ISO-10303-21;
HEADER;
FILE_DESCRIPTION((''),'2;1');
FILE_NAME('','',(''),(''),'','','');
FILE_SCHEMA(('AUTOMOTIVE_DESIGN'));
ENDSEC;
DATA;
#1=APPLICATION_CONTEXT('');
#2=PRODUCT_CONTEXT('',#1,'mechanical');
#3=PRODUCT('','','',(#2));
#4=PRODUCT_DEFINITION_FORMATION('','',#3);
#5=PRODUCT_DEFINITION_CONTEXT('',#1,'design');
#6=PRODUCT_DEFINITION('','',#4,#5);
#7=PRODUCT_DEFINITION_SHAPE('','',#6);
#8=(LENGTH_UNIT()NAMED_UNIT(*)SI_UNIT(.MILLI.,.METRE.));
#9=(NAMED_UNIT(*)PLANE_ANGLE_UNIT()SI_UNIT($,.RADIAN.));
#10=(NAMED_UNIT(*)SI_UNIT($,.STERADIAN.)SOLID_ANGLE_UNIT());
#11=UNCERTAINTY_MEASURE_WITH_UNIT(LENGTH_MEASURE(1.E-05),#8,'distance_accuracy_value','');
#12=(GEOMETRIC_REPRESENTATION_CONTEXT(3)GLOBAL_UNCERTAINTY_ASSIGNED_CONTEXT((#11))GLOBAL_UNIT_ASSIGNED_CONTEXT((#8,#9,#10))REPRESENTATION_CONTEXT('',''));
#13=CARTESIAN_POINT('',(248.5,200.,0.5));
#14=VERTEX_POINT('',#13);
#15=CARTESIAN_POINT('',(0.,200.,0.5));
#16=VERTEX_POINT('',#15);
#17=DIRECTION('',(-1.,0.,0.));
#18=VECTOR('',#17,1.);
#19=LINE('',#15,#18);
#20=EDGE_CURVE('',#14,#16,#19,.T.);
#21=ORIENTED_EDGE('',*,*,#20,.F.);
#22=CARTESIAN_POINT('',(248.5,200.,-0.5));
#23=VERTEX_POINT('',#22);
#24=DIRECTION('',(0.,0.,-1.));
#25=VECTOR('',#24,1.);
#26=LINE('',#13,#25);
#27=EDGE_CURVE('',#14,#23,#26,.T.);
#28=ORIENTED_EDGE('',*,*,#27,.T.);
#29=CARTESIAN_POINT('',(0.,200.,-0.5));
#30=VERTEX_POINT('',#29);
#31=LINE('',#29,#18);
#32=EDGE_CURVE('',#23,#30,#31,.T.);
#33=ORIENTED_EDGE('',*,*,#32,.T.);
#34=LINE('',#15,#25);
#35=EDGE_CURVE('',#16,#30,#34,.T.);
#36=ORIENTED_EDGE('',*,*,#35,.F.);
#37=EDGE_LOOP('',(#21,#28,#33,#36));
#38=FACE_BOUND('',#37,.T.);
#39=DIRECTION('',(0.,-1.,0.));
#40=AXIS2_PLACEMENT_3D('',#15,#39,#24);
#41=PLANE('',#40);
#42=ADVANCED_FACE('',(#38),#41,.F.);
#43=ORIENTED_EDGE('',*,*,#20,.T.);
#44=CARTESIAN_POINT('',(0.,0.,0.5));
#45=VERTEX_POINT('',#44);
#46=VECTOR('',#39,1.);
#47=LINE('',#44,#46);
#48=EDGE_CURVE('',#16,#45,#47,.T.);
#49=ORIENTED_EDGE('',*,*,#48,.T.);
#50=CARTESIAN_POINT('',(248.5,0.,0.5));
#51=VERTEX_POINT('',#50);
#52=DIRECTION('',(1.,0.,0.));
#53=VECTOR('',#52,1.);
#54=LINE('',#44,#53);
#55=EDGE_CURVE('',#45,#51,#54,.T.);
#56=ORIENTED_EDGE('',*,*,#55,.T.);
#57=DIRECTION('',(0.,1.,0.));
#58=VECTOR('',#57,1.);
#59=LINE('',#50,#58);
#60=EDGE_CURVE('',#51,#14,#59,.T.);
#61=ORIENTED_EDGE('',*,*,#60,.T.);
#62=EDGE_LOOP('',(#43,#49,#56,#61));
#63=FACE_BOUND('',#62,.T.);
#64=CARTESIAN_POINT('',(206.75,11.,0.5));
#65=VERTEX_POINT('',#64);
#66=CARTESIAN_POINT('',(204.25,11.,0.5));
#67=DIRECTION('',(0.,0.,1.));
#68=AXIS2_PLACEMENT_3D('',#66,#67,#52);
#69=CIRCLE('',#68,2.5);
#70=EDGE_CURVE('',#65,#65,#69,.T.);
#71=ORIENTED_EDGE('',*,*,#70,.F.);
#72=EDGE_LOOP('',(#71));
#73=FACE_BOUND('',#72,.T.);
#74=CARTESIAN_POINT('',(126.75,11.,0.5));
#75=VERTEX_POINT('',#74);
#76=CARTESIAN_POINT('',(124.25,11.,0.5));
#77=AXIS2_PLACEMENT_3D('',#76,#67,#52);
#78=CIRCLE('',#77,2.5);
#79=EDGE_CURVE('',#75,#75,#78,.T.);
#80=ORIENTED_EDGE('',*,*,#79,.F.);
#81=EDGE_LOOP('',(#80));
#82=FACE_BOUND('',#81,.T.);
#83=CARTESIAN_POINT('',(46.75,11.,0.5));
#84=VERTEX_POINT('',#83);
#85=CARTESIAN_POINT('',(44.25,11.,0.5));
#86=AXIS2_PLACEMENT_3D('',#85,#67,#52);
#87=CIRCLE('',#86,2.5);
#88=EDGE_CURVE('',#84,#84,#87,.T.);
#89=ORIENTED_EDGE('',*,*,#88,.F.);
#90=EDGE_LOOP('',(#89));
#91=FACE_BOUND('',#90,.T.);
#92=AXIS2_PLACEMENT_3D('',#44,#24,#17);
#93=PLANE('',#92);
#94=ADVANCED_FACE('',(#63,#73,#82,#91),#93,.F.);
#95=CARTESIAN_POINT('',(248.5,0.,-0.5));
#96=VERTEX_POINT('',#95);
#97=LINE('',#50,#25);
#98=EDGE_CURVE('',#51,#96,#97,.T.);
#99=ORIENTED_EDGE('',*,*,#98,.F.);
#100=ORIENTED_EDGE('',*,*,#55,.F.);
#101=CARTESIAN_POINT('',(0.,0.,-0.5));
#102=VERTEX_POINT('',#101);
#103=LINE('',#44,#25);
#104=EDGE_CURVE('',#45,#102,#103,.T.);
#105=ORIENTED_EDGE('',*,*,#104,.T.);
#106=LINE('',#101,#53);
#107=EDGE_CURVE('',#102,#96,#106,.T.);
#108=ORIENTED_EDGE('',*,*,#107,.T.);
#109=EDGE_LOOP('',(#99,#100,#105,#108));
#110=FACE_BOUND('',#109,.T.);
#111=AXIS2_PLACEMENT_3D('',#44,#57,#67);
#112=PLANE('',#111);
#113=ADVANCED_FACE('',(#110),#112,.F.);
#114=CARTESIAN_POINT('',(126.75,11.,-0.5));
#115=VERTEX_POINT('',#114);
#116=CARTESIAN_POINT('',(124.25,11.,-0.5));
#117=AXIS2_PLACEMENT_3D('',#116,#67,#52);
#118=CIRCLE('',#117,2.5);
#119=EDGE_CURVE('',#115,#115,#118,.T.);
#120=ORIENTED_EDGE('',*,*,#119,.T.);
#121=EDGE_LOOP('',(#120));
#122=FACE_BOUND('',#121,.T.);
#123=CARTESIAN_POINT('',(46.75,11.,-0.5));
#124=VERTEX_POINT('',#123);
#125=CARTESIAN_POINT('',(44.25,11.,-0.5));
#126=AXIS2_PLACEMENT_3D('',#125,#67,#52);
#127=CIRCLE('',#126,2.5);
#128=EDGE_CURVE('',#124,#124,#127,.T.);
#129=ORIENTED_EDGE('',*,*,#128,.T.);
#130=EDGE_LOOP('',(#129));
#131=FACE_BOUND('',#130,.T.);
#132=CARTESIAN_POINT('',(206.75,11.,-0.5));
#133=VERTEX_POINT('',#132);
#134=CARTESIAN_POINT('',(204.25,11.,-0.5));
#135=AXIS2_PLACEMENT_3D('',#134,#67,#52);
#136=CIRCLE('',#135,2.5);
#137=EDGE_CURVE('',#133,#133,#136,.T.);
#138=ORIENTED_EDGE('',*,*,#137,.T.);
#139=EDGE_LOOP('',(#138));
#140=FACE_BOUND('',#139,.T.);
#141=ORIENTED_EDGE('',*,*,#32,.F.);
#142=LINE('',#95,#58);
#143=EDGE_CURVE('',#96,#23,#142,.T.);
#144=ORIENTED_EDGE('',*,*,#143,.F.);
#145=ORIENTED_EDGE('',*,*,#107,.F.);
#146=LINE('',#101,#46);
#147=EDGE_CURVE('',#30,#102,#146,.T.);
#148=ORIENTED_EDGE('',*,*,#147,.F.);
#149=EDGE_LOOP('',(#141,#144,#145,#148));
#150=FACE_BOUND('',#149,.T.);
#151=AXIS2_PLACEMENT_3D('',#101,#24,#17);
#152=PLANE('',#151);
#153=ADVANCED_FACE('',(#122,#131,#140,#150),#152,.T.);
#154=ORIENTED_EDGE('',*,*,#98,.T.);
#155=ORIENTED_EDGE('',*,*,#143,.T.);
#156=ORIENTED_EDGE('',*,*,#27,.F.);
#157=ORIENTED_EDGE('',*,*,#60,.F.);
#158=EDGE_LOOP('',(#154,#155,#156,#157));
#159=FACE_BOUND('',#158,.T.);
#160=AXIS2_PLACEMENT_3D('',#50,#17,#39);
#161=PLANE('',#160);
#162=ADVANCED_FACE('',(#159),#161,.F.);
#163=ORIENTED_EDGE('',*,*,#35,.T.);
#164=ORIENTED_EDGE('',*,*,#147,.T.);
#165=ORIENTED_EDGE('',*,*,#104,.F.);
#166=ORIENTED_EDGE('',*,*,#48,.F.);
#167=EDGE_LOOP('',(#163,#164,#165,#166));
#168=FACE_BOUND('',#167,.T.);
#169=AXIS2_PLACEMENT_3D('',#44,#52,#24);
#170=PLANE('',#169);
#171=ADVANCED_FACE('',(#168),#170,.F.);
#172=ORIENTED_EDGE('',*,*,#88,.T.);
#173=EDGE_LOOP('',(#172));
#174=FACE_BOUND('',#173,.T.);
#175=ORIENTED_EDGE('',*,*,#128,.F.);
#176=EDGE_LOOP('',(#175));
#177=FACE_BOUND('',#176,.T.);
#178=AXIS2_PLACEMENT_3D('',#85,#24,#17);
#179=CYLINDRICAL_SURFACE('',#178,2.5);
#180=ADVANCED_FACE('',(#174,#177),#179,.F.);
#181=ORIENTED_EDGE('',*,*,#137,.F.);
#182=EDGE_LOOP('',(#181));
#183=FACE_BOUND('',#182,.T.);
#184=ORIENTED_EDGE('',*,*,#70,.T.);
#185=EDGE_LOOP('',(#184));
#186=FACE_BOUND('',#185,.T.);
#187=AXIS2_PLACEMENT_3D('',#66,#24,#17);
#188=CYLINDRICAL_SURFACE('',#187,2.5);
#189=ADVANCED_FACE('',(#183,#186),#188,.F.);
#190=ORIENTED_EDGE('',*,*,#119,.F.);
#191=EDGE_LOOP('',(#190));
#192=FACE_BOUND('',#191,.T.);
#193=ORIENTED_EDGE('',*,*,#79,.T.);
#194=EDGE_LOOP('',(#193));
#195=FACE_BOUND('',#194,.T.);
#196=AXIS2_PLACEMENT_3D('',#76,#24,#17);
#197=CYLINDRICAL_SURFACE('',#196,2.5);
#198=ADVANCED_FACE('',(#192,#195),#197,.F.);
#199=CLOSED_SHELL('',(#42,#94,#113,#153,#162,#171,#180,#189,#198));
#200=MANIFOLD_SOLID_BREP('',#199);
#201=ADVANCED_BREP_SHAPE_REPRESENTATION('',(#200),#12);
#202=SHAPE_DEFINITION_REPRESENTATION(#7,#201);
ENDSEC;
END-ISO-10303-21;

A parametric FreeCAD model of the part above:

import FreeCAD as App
import Part
import Sketcher
Q = App.Units.Quantity

doc = App.newDocument("Part")
params = doc.addObject("Spreadsheet::Sheet", "Params")
for row, (alias, value) in enumerate([
    ("sketch1_diameter", "5 mm"),
    ("sketch1_height", "200 mm"),
    ("sketch1_width", "248.5 mm"),
    ("pad1_length", "1 mm"),
], start=1):
    params.set(f"A{row}", alias)
    params.set(f"B{row}", "=" + value)
    params.setAlias(f"B{row}", alias)

body = doc.addObject("PartDesign::Body", "Body")

sketch1 = body.newObject("Sketcher::SketchObject", "Sketch")
sketch1.AttachmentSupport = (doc.getObject("XY_Plane"), [""])
sketch1.MapMode = "FlatFace"
sketch1.addGeometry(Part.LineSegment(App.Vector(0, 200, 0), App.Vector(0, 0, 0)), False)
sketch1.addGeometry(Part.LineSegment(App.Vector(0, 0, 0), App.Vector(248.5, 0, 0)), False)
sketch1.addGeometry(Part.LineSegment(App.Vector(248.5, 0, 0), App.Vector(248.5, 200, 0)), False)
sketch1.addGeometry(Part.LineSegment(App.Vector(248.5, 200, 0), App.Vector(0, 200, 0)), False)
sketch1.addGeometry(Part.Circle(App.Vector(44.2, 11, 0), App.Vector(0, 0, 1), 2.5), False)
sketch1.addGeometry(Part.Circle(App.Vector(124.2, 11, 0), App.Vector(0, 0, 1), 2.5), False)
sketch1.addGeometry(Part.Circle(App.Vector(204.2, 11, 0), App.Vector(0, 0, 1), 2.5), False)
sketch1.addConstraint(Sketcher.Constraint("Coincident", 0, 2, 1, 1))
sketch1.addConstraint(Sketcher.Constraint("Coincident", 1, 2, 2, 1))
sketch1.addConstraint(Sketcher.Constraint("Coincident", 2, 2, 3, 1))
sketch1.addConstraint(Sketcher.Constraint("Coincident", 3, 2, 0, 1))
sketch1.addConstraint(Sketcher.Constraint("Vertical", 0))
sketch1.addConstraint(Sketcher.Constraint("Horizontal", 1))
sketch1.addConstraint(Sketcher.Constraint("Vertical", 2))
sketch1.addConstraint(Sketcher.Constraint("Horizontal", 3))
sketch1.addConstraint(Sketcher.Constraint("Coincident", 0, 2, -1, 1))
sketch1.addConstraint(Sketcher.Constraint("Equal", 4, 5))
sketch1.addConstraint(Sketcher.Constraint("Equal", 5, 6))
sketch1.addConstraint(Sketcher.Constraint("Horizontal", 4, 3, 5, 3))
sketch1.addConstraint(Sketcher.Constraint("Horizontal", 5, 3, 6, 3))
sketch1.addConstraint(Sketcher.Constraint("Diameter", 4, Q("5 mm")))
sketch1.addConstraint(Sketcher.Constraint("DistanceY", 0, 2, 0, 1, Q("200 mm")))
sketch1.addConstraint(Sketcher.Constraint("DistanceX", 1, 1, 1, 2, Q("248.5 mm")))
sketch1.addConstraint(Sketcher.Constraint("DistanceY", -1, 1, 4, 3, Q("11 mm")))
sketch1.addConstraint(Sketcher.Constraint("DistanceX", 4, 3, 5, 3, Q("80 mm")))
sketch1.addConstraint(Sketcher.Constraint("DistanceX", 5, 3, 6, 3, Q("80 mm")))
sketch1.addConstraint(Sketcher.Constraint("DistanceX", -1, 1, 4, 3, Q("44.25 mm")))
sketch1.setExpression("Constraints[13]", "Params.sketch1_diameter")
sketch1.setExpression("Constraints[14]", "Params.sketch1_height")
sketch1.setExpression("Constraints[15]", "Params.sketch1_width")
pad1 = body.newObject("PartDesign::Pad", "Pad")
pad1.Profile = sketch1
pad1.setExpression("Length", "Params.pad1_length")
pad1.Midplane = True

doc.recompute()
